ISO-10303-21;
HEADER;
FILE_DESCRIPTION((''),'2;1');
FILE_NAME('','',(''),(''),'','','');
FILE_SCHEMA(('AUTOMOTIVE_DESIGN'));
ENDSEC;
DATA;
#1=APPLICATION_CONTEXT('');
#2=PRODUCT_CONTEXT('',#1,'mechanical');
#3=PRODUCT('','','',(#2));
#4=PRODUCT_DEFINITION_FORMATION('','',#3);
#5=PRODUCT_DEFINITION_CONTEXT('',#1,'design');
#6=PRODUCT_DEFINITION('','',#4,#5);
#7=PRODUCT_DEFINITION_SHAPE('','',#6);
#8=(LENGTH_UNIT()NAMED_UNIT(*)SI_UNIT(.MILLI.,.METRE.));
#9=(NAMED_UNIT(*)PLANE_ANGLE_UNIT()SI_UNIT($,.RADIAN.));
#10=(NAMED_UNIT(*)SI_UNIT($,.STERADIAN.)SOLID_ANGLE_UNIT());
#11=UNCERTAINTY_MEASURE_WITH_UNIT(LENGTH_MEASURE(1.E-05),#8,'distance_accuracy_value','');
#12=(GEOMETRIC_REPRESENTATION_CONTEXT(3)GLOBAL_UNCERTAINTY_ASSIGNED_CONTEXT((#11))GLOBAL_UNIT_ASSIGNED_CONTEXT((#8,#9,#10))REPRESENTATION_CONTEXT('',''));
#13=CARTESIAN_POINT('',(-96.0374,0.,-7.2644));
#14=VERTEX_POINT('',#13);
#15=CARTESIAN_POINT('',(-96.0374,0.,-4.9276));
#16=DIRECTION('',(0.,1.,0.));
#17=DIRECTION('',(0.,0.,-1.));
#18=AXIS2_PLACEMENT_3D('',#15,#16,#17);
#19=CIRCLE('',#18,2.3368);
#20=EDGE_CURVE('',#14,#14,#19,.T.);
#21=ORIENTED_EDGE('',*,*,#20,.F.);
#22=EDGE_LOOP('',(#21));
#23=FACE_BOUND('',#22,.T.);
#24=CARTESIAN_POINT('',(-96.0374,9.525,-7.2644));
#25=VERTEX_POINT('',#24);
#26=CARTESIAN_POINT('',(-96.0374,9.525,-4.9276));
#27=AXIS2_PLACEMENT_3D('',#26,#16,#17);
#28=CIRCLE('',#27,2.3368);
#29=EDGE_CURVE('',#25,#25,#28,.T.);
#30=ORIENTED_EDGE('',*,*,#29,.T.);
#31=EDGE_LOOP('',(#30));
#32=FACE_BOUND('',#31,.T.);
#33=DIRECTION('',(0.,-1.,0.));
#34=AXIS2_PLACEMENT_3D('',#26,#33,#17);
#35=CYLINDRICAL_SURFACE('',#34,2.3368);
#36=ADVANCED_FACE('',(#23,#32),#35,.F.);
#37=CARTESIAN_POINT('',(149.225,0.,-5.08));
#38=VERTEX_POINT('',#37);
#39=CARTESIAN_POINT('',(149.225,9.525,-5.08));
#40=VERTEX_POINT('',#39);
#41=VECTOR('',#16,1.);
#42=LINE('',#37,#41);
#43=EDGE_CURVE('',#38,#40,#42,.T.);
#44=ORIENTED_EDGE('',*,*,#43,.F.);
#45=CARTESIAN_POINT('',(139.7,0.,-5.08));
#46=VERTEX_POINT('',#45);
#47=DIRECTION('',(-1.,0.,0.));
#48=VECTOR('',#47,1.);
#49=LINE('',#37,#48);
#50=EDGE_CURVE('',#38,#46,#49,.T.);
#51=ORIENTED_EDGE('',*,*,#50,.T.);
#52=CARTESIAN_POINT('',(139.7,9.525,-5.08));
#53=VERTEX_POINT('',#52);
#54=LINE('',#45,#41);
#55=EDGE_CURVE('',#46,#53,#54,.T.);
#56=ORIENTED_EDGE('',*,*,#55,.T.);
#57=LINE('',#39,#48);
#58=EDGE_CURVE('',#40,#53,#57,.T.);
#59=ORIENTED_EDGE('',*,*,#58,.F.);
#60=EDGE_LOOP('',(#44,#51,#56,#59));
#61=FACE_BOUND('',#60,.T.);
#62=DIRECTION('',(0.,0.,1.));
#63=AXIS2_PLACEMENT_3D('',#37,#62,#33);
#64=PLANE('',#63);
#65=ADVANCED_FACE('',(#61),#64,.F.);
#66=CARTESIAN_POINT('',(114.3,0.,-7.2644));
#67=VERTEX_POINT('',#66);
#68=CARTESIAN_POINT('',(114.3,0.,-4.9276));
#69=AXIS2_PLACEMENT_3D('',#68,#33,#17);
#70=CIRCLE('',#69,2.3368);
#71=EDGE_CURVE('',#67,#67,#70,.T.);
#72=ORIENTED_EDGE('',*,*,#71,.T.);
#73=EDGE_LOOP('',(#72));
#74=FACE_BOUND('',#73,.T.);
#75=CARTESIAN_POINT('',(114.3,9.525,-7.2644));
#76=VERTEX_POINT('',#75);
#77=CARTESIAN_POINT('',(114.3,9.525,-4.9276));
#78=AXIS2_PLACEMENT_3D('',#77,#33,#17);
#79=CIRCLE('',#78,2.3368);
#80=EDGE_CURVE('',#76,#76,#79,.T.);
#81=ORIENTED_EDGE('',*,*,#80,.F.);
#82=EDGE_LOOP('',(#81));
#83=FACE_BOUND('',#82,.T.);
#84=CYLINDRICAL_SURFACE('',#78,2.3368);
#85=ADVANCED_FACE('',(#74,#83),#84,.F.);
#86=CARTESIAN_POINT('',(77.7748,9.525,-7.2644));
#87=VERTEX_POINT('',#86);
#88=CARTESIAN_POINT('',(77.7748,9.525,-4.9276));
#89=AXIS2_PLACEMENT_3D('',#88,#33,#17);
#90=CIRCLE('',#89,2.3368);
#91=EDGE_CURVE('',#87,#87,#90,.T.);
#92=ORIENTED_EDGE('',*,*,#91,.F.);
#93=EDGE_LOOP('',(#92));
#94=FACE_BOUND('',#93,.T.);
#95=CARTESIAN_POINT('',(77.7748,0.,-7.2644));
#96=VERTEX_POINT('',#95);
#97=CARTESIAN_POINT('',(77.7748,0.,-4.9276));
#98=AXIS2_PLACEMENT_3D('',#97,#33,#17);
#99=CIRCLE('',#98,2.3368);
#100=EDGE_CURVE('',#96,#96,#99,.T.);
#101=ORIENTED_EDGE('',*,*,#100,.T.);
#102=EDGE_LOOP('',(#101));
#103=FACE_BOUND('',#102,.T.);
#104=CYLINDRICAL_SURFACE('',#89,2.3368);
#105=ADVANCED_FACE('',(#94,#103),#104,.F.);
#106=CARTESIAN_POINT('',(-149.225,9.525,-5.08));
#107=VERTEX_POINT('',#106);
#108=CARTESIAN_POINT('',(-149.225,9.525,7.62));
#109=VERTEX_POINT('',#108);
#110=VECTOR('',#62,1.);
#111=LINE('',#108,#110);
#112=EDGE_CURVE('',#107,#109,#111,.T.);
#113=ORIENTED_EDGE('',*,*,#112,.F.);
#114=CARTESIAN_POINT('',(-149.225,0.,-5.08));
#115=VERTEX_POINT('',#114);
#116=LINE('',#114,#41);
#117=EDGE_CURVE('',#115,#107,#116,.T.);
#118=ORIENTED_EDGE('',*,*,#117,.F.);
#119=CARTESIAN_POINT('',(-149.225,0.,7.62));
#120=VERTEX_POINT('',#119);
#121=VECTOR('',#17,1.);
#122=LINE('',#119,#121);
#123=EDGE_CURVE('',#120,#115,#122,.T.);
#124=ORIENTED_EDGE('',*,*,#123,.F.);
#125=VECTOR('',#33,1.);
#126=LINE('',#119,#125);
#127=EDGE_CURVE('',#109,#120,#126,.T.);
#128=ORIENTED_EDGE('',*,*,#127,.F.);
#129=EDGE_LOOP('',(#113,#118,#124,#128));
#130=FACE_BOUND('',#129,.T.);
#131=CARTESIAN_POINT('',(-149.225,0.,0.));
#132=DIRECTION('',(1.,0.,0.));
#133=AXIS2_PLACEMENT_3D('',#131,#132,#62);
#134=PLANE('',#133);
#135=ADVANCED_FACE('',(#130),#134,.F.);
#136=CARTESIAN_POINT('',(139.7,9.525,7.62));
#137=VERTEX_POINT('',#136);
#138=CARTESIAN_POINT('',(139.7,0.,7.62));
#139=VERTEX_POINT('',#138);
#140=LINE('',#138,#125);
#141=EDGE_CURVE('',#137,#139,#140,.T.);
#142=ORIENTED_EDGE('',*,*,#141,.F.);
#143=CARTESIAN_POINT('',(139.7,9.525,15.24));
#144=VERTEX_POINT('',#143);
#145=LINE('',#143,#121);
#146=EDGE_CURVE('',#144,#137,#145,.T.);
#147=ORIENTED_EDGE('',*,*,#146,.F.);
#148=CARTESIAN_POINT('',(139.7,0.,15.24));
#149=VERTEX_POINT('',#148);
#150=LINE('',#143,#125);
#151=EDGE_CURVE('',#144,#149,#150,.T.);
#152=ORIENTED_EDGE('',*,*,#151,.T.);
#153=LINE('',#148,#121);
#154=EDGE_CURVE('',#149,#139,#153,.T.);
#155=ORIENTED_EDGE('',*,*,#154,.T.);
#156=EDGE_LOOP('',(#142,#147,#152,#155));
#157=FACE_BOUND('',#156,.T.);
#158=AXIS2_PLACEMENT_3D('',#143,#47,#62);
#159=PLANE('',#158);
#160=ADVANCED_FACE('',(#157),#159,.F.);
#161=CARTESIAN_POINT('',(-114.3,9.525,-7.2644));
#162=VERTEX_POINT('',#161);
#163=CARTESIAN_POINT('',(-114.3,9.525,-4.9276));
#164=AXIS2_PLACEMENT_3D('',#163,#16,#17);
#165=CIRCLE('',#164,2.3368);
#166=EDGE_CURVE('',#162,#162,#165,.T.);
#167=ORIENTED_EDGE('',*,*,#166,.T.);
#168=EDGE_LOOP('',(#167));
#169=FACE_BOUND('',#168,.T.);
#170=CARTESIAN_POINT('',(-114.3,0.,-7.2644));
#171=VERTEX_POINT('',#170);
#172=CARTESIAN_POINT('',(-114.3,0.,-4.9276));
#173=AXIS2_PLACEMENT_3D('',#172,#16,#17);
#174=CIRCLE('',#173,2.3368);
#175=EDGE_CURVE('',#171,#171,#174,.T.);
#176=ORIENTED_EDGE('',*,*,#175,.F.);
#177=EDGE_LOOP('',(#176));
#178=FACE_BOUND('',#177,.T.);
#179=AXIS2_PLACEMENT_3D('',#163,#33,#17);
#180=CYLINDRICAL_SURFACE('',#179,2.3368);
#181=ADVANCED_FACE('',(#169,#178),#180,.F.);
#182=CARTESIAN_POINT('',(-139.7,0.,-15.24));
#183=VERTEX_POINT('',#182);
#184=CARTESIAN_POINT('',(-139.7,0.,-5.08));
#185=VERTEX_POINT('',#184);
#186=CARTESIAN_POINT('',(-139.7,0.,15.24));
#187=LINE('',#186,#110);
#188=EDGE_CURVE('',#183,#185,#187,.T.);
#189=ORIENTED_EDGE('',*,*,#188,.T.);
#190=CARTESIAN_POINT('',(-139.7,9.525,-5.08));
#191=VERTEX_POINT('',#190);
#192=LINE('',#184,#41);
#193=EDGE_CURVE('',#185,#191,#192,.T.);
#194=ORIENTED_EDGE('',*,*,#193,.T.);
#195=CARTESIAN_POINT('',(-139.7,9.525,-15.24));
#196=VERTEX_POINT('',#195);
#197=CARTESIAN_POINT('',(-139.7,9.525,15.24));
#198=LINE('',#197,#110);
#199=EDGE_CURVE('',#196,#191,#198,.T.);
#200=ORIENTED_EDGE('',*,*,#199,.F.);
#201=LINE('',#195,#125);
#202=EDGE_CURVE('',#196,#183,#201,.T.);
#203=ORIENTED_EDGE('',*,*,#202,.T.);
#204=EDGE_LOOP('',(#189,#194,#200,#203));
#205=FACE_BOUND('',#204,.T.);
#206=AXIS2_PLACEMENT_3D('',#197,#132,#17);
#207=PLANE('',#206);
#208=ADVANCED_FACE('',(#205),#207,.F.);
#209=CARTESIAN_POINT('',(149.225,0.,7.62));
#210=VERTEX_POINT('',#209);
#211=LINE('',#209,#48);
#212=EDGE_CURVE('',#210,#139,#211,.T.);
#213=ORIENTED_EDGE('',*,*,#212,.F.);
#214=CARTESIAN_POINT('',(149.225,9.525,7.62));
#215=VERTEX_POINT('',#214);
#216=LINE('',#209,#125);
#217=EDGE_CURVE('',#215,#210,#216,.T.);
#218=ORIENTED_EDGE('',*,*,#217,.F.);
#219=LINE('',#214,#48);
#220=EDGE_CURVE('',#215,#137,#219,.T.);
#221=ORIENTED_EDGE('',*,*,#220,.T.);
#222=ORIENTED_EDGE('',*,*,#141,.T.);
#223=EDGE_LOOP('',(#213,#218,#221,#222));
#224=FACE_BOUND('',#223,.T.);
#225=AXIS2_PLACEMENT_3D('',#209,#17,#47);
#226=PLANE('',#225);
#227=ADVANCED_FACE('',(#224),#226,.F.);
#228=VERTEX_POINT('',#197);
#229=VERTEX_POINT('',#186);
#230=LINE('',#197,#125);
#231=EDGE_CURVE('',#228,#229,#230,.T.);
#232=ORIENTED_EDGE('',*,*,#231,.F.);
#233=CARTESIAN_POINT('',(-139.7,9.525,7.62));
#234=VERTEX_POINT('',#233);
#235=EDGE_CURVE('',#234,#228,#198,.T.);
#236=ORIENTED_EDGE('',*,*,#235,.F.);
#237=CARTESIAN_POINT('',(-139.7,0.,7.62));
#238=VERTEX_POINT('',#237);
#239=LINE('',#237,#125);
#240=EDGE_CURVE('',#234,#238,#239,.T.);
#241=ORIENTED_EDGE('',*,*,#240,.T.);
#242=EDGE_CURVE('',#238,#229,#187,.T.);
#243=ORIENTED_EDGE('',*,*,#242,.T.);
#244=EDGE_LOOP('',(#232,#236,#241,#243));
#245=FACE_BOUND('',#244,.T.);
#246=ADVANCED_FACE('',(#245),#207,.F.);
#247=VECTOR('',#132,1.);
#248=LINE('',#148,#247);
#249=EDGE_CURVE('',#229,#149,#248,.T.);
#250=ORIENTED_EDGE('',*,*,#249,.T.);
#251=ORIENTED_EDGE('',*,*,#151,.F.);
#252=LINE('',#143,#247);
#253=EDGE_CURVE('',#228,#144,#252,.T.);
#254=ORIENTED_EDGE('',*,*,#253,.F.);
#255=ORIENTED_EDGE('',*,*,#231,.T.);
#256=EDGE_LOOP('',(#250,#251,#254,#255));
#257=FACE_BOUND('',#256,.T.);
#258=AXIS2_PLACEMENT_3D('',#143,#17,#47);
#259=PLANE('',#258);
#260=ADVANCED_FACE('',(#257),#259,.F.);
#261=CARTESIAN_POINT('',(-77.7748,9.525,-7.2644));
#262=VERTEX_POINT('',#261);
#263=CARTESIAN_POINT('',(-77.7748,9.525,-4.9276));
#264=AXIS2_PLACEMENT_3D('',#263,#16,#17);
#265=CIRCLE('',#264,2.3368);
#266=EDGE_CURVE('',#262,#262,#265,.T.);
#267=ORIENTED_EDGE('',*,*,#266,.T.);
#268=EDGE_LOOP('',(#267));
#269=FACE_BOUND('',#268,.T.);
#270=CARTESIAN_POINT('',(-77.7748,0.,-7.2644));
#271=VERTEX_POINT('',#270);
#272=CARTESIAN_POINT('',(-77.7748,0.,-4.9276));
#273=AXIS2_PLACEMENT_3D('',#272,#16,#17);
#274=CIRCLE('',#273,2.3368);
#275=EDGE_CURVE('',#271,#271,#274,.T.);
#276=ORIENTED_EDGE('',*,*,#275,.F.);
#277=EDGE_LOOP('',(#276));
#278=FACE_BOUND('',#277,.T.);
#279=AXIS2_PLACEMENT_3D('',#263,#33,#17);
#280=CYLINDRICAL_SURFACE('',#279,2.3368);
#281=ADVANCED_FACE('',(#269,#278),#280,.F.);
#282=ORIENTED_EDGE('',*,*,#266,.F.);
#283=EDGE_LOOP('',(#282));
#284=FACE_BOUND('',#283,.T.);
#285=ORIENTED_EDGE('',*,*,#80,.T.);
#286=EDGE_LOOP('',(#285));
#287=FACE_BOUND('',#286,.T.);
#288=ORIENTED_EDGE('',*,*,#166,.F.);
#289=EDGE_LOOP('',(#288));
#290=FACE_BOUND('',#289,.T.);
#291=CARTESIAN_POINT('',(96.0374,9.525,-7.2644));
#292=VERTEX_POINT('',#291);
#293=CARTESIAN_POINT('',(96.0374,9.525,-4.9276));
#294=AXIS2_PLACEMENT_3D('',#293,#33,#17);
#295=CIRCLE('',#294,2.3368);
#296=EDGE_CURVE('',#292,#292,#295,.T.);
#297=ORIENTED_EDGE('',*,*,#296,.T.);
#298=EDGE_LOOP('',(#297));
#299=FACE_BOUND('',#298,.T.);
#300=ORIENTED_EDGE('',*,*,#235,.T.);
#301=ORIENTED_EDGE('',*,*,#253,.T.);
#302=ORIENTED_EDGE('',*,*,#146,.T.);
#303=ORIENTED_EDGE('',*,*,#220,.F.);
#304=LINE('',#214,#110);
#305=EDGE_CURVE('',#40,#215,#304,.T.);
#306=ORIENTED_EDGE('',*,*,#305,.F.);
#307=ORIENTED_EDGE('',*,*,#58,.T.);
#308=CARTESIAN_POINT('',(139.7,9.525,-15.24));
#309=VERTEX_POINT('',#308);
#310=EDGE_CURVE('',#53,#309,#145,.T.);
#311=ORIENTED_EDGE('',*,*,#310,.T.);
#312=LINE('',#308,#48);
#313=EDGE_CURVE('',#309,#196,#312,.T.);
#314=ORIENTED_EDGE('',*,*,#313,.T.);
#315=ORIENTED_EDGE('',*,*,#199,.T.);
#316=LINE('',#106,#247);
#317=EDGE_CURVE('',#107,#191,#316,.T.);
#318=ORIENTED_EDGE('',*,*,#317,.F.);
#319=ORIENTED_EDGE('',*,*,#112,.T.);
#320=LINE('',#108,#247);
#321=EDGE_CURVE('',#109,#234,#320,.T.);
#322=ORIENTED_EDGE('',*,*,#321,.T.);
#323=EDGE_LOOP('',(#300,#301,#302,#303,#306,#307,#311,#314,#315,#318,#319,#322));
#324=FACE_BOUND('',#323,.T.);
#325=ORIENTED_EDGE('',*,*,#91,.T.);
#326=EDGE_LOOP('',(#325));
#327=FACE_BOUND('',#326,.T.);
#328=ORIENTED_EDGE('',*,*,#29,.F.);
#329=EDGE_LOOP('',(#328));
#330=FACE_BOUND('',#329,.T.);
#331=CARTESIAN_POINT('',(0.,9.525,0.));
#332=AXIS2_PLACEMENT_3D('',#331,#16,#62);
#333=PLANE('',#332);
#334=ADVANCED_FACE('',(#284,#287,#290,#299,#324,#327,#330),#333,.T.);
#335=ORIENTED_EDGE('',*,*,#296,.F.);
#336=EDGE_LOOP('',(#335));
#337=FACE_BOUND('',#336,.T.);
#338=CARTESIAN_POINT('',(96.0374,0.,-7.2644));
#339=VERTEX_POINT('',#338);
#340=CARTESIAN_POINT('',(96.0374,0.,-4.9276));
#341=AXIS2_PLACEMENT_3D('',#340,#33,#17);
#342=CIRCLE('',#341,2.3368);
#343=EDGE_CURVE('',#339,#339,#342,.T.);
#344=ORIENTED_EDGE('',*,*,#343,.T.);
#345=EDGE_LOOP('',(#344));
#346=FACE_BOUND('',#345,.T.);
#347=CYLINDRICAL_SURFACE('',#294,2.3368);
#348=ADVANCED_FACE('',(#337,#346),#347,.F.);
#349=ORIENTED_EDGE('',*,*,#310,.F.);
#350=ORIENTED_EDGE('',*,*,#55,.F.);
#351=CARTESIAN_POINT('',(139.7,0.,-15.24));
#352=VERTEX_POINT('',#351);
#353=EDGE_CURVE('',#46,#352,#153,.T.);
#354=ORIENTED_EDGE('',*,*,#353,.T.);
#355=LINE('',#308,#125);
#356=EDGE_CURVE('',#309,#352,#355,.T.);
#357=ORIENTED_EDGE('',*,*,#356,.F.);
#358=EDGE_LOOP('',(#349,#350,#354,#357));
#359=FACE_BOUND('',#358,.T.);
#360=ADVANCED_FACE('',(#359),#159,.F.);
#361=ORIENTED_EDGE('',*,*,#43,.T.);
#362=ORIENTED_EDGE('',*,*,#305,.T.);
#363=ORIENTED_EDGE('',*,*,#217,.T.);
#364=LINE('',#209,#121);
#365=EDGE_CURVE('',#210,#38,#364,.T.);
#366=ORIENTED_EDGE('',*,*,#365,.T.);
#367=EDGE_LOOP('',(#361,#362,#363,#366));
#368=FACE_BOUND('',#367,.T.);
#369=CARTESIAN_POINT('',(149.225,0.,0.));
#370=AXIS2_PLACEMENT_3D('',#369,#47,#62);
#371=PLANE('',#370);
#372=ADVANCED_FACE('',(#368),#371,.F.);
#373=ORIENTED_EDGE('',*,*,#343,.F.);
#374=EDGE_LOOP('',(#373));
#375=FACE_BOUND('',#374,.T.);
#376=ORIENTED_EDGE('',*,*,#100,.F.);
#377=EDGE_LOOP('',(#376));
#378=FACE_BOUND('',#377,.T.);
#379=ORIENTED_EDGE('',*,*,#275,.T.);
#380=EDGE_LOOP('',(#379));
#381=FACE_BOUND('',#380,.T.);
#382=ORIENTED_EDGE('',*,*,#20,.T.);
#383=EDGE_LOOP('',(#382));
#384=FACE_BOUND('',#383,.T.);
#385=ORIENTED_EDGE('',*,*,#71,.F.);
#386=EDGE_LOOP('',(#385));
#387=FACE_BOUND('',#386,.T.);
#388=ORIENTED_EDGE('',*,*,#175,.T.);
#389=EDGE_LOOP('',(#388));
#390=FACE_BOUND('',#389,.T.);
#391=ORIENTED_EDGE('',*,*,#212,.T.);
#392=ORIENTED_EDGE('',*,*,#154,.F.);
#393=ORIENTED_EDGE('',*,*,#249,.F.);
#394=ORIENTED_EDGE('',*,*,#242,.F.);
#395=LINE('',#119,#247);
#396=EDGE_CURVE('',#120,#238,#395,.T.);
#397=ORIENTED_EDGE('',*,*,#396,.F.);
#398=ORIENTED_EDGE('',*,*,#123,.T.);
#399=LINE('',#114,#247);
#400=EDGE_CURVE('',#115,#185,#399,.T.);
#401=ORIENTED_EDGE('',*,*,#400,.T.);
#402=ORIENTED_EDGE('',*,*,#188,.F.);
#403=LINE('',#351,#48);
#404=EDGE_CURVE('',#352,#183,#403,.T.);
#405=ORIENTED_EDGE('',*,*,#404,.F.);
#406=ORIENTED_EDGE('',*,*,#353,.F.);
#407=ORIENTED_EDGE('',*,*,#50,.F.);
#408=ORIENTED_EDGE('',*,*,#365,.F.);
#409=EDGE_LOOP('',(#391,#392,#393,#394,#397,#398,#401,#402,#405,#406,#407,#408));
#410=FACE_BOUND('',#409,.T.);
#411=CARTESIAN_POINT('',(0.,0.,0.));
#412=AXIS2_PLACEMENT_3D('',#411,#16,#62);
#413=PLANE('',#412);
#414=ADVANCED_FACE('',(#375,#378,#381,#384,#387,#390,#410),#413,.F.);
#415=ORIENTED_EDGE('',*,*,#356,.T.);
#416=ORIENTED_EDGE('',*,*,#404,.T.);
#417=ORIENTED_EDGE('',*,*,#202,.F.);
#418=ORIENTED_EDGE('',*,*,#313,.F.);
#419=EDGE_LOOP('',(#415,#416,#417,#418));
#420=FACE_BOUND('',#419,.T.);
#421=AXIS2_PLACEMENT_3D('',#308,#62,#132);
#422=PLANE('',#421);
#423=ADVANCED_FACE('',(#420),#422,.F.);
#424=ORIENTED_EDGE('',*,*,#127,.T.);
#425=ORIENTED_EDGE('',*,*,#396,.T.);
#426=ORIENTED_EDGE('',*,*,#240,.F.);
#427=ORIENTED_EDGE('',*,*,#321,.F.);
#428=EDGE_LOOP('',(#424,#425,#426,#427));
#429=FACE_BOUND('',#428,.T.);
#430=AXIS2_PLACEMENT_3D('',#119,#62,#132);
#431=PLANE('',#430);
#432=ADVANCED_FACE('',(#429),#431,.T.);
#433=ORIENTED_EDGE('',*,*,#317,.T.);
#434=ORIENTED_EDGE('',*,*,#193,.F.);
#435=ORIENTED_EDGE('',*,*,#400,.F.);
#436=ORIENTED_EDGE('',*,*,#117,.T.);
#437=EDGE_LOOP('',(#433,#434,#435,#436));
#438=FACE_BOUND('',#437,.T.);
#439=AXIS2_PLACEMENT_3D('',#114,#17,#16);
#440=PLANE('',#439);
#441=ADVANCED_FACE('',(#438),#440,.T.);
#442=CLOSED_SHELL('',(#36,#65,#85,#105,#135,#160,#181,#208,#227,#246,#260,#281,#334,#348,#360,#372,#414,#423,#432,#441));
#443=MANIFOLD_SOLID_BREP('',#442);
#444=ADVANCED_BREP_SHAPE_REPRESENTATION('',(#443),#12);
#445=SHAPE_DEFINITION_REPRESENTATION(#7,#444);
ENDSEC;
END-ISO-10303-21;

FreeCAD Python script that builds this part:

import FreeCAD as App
import Part
import Sketcher
Q = App.Units.Quantity


def add_polygon(sketch, points):
    """Adds a closed chain of lines whose ends are joined by coincident constraints."""
    first, n = sketch.GeometryCount, len(points)
    for a, b in zip(points, points[1:] + points[:1]):
        sketch.addGeometry(Part.LineSegment(App.Vector(*a, 0), App.Vector(*b, 0)), False)
    for i in range(n):
        sketch.addConstraint(Sketcher.Constraint("Coincident", first + i, 2, first + (i + 1) % n, 1))

doc = App.newDocument("Part")
body = doc.addObject("PartDesign::Body", "Body")

# Sketch on XZ plane
sketch1 = body.newObject("Sketcher::SketchObject", "Sketch")
sketch1.AttachmentSupport = (doc.getObject("XZ_Plane"), [""])
sketch1.MapMode = "FlatFace"
add_polygon(sketch1, [(-140, -15), (-140, 15), (140, 15), (140, -15)])  # lines 0-3
sketch1.addConstraint([
    Sketcher.Constraint("Vertical", 0),
    Sketcher.Constraint("Horizontal", 1),
    Sketcher.Constraint("Vertical", 2),
    Sketcher.Constraint("Horizontal", 3),
    Sketcher.Constraint("Symmetric", 0, 2, 2, 2, -1, 1),
    Sketcher.Constraint("DistanceX", 1, 1, 1, 2, Q("11 in")),
    Sketcher.Constraint("DistanceY", 0, 1, 0, 2, Q("1.2 in")),
])
pad1 = body.newObject("PartDesign::Pad", "Pad")
pad1.Profile = sketch1
pad1.Length = Q("0.375 in")
pad1.Reversed = True

# Sketch on YZ plane
sketch2 = body.newObject("Sketcher::SketchObject", "Sketch001")
sketch2.AttachmentSupport = (doc.getObject("YZ_Plane"), [""])
sketch2.MapMode = "FlatFace"
sketch2.AttachmentOffset = App.Placement(App.Vector(0, 0, 5.5 * 25.4), App.Rotation())
add_polygon(sketch2, [(10, 8), (0, 8), (0, -5), (10, -5)])  # lines 0-3
sketch2.addConstraint([
    Sketcher.Constraint("Horizontal", 0),
    Sketcher.Constraint("Vertical", 1),
    Sketcher.Constraint("Horizontal", 2),
    Sketcher.Constraint("Vertical", 3),
    Sketcher.Constraint("PointOnObject", 0, 2, -2),
    Sketcher.Constraint("DistanceY", 1, 2, 1, 1, Q("0.5 in")),
    Sketcher.Constraint("DistanceY", -1, 1, 0, 2, Q("0.3 in")),
    Sketcher.Constraint("DistanceX", 0, 2, 0, 1, Q("0.375 in")),
])
pad2 = body.newObject("PartDesign::Pad", "Pad001")
pad2.Profile = sketch2
pad2.Length = Q("0.375 in")
doc.recompute()

mirrored = body.newObject("PartDesign::Mirrored", "Mirrored")
mirrored.Originals = [pad2]
mirrored.MirrorPlane = (doc.getObject("YZ_Plane"), [""])
body.Tip = mirrored

# Sketch on XZ plane
sketch3 = body.newObject("Sketcher::SketchObject", "Sketch002")
sketch3.AttachmentSupport = (doc.getObject("XZ_Plane"), [""])
sketch3.MapMode = "FlatFace"
sketch3.addGeometry([
    Part.Circle(App.Vector(114.3, -4.9, 0), App.Vector(0, 0, 1), 2.3),
    Part.Circle(App.Vector(77.8, -4.9, 0), App.Vector(0, 0, 1), 2.3),
    Part.Circle(App.Vector(96, -4.9, 0), App.Vector(0, 0, 1), 2.3),
], False)
sketch3.addConstraint([
    Sketcher.Constraint("Equal", 0, 1),
    Sketcher.Constraint("Equal", 1, 2),
    Sketcher.Constraint("Horizontal", 0, 3, 1, 3),
    Sketcher.Constraint("Horizontal", 1, 3, 2, 3),
    Sketcher.Constraint("Diameter", 0, Q("0.184 in")),
    Sketcher.Constraint("DistanceX", -1, 1, 0, 3, Q("4.5 in")),
    Sketcher.Constraint("DistanceY", 0, 3, -1, 1, Q("0.194 in")),
    Sketcher.Constraint("DistanceX", -1, 1, 1, 3, Q("3.062 in")),
    Sketcher.Constraint("DistanceX", -1, 1, 2, 3, Q("3.781 in")),
])
pocket1 = body.newObject("PartDesign::Pocket", "Pocket")
pocket1.Profile = sketch3
pocket1.Type = "ThroughAll"
doc.recompute()

mirrored2 = body.newObject("PartDesign::Mirrored", "Mirrored001")
mirrored2.Originals = [pocket1]
mirrored2.MirrorPlane = (doc.getObject("YZ_Plane"), [""])
body.Tip = mirrored2

doc.recompute()
